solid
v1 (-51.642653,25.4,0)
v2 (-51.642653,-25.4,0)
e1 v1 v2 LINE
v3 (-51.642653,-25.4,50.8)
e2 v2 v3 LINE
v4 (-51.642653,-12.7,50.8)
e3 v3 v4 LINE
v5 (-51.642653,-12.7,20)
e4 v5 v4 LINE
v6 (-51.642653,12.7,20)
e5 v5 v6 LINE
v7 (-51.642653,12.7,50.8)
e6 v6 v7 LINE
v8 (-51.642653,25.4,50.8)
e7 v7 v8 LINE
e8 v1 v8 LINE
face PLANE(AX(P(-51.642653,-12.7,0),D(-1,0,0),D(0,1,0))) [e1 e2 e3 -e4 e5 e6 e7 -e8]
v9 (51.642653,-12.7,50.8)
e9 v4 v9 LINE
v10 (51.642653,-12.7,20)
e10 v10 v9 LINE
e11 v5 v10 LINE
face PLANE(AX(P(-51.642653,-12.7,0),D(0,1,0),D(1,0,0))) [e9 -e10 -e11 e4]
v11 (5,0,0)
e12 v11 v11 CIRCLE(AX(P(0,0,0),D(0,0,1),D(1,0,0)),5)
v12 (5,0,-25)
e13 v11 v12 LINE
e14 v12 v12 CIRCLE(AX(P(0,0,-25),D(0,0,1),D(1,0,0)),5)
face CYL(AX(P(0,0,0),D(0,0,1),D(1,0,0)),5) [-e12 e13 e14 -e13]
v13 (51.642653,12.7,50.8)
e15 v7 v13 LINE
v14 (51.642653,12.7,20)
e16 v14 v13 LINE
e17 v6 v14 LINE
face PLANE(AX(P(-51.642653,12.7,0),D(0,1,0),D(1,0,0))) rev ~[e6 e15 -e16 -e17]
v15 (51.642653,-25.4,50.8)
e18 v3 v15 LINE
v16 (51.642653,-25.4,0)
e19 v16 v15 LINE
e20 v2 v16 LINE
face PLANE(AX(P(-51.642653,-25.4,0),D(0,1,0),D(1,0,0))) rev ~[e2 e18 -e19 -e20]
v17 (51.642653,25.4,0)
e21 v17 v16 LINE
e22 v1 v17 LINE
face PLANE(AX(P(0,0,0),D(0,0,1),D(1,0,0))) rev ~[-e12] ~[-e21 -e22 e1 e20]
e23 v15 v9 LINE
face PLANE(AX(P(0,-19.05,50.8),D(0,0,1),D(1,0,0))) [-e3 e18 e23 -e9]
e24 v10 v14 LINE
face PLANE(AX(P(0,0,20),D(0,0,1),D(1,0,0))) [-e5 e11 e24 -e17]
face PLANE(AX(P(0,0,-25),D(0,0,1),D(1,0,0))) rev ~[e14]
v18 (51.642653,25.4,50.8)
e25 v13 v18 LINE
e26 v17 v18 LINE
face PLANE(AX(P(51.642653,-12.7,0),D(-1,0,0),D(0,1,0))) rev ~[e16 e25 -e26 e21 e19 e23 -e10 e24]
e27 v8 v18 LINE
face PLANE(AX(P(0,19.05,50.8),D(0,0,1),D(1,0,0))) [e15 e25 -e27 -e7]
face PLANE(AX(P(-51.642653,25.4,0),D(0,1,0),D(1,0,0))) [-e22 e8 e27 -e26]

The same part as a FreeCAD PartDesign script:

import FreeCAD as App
import Part
import Sketcher
from FreeCAD import Vector
Q = App.Units.Quantity


def add_polygon(sketch, points):
    """Adds a closed chain of lines whose ends are joined by coincident constraints."""
    first, n = sketch.GeometryCount, len(points)
    for a, b in zip(points, points[1:] + points[:1]):
        sketch.addGeometry(Part.LineSegment(App.Vector(*a, 0), App.Vector(*b, 0)), False)
    for i in range(n):
        sketch.addConstraint(Sketcher.Constraint("Coincident", first + i, 2, first + (i + 1) % n, 1))

doc = App.newDocument("Part")
body = doc.addObject("PartDesign::Body", "Body")
body.AllowCompound = True

sketch1 = body.newObject("Sketcher::SketchObject", "Sketch")
sketch1.AttachmentSupport = (doc.getObject("XY_Plane"), [""])
sketch1.MapMode = "FlatFace"
add_polygon(sketch1, [(-51.642653, 25.4), (-51.642653, 12.7), (51.642653, 12.7), (51.642653, 25.4)])
add_polygon(sketch1, [(-51.642653, -12.7), (-51.642653, -25.4), (51.642653, -25.4), (51.642653, -12.7)])
sketch1.addConstraint([
    Sketcher.Constraint("Vertical", 0),
    Sketcher.Constraint("Horizontal", 1),
    Sketcher.Constraint("Vertical", 2),
    Sketcher.Constraint("Horizontal", 3),
    Sketcher.Constraint("Vertical", 4),
    Sketcher.Constraint("Horizontal", 5),
    Sketcher.Constraint("Vertical", 6),
    Sketcher.Constraint("Horizontal", 7),
    Sketcher.Constraint("Symmetric", 2, 2, 4, 2, -1, 1),
    Sketcher.Constraint("Symmetric", 0, 2, 6, 2, -1, 1),
    Sketcher.Constraint("Vertical", 3, 2, 4, 2),
    Sketcher.Constraint("DistanceY", 0, 2, 0, 1, Q("12.7 mm")),
    Sketcher.Constraint("DistanceY", -1, 1, 0, 2, Q("12.7 mm")),
    Sketcher.Constraint("DistanceX", 1, 1, 1, 2, Q("103.285306 mm")),
])
pad1 = body.newObject("PartDesign::Pad", "Pad")
pad1.Profile = sketch1
pad1.Length = 50.8

sketch2 = body.newObject("Sketcher::SketchObject", "Sketch001")
sketch2.AttachmentSupport = (doc.getObject("XY_Plane"), [""])
sketch2.MapMode = "FlatFace"
add_polygon(sketch2, [(-51.642653, 12.7), (-51.642653, -12.7), (51.642653, -12.7), (51.642653, 12.7)])
sketch2.addConstraint([
    Sketcher.Constraint("Vertical", 0),
    Sketcher.Constraint("Horizontal", 1),
    Sketcher.Constraint("Vertical", 2),
    Sketcher.Constraint("Horizontal", 3),
    Sketcher.Constraint("Symmetric", 0, 2, 2, 2, -1, 1),
    Sketcher.Constraint("DistanceY", 0, 2, 0, 1, Q("25.4 mm")),
    Sketcher.Constraint("DistanceX", 1, 1, 1, 2, Q("103.285306 mm")),
])
pad2 = body.newObject("PartDesign::Pad", "Pad001")
pad2.Profile = sketch2
pad2.Length = 20

sketch3 = body.newObject("Sketcher::SketchObject", "Sketch002")
sketch3.AttachmentSupport = (doc.getObject("XY_Plane"), [""])
sketch3.MapMode = "FlatFace"
sketch3.addGeometry(Part.Circle(Vector(0, 0, 0), Vector(0, 0, 1), 5), False)
sketch3.addConstraint([
    Sketcher.Constraint("Coincident", 0, 3, -1, 1),
    Sketcher.Constraint("Diameter", 0, Q("10 mm")),
])
pad3 = body.newObject("PartDesign::Pad", "Pad002")
pad3.Profile = sketch3
pad3.Length = 25
pad3.Reversed = True

doc.recompute()
